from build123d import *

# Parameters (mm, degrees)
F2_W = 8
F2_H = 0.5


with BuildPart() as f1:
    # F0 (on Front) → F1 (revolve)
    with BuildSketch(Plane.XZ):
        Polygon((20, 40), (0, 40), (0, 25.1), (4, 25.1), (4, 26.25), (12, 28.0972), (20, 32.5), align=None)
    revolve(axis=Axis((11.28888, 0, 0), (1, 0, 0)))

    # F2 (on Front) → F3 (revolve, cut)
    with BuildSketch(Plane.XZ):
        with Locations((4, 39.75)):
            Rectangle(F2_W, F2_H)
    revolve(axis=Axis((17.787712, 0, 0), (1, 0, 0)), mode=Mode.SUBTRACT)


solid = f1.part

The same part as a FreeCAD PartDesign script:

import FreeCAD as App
import Part
import Sketcher

V = App.Vector
Q = App.Units.Quantity


def add_polygon(sketch, points):
    """Adds a closed chain of lines whose ends are joined by coincident constraints."""
    first, n = sketch.GeometryCount, len(points)
    for a, b in zip(points, points[1:] + points[:1]):
        sketch.addGeometry(Part.LineSegment(App.Vector(*a, 0), App.Vector(*b, 0)), False)
    for i in range(n):
        sketch.addConstraint(Sketcher.Constraint("Coincident", first + i, 2, first + (i + 1) % n, 1))

doc = App.newDocument("Part")
body = doc.addObject("PartDesign::Body", "Body")

# Sketch on XZ plane
sketch1 = body.newObject("Sketcher::SketchObject", "Sketch")
sketch1.AttachmentSupport = (doc.getObject("XZ_Plane"), [""])
sketch1.MapMode = "FlatFace"
add_polygon(sketch1, [(20, 40), (0, 40), (0, 25.1), (4, 25.1), (4, 26.2), (12, 28.1), (20, 32.5)])  # lines 0-6
sketch1.addConstraint([
    Sketcher.Constraint("Horizontal", 0),
    Sketcher.Constraint("Vertical", 1),
    Sketcher.Constraint("Horizontal", 2),
    Sketcher.Constraint("Vertical", 3),
    Sketcher.Constraint("Vertical", 6),
    Sketcher.Constraint("PointOnObject", 0, 2, -2),
    Sketcher.Constraint("DistanceX", 0, 2, 0, 1, Q("20 mm")),
    Sketcher.Constraint("DistanceX", 2, 1, 2, 2, Q("4 mm")),
    Sketcher.Constraint("DistanceY", 1, 2, 1, 1, Q("14.9 mm")),
    Sketcher.Constraint("DistanceY", 6, 1, 6, 2, Q("7.5 mm")),
    Sketcher.Constraint("DistanceY", -1, 1, 0, 2, Q("40 mm")),
    Sketcher.Constraint("DistanceX", -1, 1, 4, 2, Q("12 mm")),
    Sketcher.Constraint("DistanceY", 3, 1, 3, 2, Q("1.15 mm")),
    Sketcher.Constraint("DistanceY", -1, 1, 4, 2, Q("28.0972 mm")),
])
revolution = body.newObject("PartDesign::Revolution", "Revolution")
revolution.Profile = sketch1
revolution.ReferenceAxis = (sketch1, ["H_Axis"])
revolution.Angle = 360

# Sketch on XZ plane
sketch2 = body.newObject("Sketcher::SketchObject", "Sketch001")
sketch2.AttachmentSupport = (doc.getObject("XZ_Plane"), [""])
sketch2.MapMode = "FlatFace"
add_polygon(sketch2, [(0, 40), (0, 39.5), (8, 39.5), (8, 40)])  # lines 0-3
sketch2.addConstraint([
    Sketcher.Constraint("Vertical", 0),
    Sketcher.Constraint("Horizontal", 1),
    Sketcher.Constraint("Vertical", 2),
    Sketcher.Constraint("Horizontal", 3),
    Sketcher.Constraint("PointOnObject", 0, 2, -2),
    Sketcher.Constraint("DistanceX", 1, 1, 1, 2, Q("8 mm")),
    Sketcher.Constraint("DistanceY", 0, 2, 0, 1, Q("0.5 mm")),
    Sketcher.Constraint("DistanceY", -1, 1, 2, 2, Q("40 mm")),
])
groove = body.newObject("PartDesign::Groove", "Groove")
groove.Profile = sketch2
groove.ReferenceAxis = (sketch2, ["H_Axis"])
groove.Angle = 360

doc.recompute()
